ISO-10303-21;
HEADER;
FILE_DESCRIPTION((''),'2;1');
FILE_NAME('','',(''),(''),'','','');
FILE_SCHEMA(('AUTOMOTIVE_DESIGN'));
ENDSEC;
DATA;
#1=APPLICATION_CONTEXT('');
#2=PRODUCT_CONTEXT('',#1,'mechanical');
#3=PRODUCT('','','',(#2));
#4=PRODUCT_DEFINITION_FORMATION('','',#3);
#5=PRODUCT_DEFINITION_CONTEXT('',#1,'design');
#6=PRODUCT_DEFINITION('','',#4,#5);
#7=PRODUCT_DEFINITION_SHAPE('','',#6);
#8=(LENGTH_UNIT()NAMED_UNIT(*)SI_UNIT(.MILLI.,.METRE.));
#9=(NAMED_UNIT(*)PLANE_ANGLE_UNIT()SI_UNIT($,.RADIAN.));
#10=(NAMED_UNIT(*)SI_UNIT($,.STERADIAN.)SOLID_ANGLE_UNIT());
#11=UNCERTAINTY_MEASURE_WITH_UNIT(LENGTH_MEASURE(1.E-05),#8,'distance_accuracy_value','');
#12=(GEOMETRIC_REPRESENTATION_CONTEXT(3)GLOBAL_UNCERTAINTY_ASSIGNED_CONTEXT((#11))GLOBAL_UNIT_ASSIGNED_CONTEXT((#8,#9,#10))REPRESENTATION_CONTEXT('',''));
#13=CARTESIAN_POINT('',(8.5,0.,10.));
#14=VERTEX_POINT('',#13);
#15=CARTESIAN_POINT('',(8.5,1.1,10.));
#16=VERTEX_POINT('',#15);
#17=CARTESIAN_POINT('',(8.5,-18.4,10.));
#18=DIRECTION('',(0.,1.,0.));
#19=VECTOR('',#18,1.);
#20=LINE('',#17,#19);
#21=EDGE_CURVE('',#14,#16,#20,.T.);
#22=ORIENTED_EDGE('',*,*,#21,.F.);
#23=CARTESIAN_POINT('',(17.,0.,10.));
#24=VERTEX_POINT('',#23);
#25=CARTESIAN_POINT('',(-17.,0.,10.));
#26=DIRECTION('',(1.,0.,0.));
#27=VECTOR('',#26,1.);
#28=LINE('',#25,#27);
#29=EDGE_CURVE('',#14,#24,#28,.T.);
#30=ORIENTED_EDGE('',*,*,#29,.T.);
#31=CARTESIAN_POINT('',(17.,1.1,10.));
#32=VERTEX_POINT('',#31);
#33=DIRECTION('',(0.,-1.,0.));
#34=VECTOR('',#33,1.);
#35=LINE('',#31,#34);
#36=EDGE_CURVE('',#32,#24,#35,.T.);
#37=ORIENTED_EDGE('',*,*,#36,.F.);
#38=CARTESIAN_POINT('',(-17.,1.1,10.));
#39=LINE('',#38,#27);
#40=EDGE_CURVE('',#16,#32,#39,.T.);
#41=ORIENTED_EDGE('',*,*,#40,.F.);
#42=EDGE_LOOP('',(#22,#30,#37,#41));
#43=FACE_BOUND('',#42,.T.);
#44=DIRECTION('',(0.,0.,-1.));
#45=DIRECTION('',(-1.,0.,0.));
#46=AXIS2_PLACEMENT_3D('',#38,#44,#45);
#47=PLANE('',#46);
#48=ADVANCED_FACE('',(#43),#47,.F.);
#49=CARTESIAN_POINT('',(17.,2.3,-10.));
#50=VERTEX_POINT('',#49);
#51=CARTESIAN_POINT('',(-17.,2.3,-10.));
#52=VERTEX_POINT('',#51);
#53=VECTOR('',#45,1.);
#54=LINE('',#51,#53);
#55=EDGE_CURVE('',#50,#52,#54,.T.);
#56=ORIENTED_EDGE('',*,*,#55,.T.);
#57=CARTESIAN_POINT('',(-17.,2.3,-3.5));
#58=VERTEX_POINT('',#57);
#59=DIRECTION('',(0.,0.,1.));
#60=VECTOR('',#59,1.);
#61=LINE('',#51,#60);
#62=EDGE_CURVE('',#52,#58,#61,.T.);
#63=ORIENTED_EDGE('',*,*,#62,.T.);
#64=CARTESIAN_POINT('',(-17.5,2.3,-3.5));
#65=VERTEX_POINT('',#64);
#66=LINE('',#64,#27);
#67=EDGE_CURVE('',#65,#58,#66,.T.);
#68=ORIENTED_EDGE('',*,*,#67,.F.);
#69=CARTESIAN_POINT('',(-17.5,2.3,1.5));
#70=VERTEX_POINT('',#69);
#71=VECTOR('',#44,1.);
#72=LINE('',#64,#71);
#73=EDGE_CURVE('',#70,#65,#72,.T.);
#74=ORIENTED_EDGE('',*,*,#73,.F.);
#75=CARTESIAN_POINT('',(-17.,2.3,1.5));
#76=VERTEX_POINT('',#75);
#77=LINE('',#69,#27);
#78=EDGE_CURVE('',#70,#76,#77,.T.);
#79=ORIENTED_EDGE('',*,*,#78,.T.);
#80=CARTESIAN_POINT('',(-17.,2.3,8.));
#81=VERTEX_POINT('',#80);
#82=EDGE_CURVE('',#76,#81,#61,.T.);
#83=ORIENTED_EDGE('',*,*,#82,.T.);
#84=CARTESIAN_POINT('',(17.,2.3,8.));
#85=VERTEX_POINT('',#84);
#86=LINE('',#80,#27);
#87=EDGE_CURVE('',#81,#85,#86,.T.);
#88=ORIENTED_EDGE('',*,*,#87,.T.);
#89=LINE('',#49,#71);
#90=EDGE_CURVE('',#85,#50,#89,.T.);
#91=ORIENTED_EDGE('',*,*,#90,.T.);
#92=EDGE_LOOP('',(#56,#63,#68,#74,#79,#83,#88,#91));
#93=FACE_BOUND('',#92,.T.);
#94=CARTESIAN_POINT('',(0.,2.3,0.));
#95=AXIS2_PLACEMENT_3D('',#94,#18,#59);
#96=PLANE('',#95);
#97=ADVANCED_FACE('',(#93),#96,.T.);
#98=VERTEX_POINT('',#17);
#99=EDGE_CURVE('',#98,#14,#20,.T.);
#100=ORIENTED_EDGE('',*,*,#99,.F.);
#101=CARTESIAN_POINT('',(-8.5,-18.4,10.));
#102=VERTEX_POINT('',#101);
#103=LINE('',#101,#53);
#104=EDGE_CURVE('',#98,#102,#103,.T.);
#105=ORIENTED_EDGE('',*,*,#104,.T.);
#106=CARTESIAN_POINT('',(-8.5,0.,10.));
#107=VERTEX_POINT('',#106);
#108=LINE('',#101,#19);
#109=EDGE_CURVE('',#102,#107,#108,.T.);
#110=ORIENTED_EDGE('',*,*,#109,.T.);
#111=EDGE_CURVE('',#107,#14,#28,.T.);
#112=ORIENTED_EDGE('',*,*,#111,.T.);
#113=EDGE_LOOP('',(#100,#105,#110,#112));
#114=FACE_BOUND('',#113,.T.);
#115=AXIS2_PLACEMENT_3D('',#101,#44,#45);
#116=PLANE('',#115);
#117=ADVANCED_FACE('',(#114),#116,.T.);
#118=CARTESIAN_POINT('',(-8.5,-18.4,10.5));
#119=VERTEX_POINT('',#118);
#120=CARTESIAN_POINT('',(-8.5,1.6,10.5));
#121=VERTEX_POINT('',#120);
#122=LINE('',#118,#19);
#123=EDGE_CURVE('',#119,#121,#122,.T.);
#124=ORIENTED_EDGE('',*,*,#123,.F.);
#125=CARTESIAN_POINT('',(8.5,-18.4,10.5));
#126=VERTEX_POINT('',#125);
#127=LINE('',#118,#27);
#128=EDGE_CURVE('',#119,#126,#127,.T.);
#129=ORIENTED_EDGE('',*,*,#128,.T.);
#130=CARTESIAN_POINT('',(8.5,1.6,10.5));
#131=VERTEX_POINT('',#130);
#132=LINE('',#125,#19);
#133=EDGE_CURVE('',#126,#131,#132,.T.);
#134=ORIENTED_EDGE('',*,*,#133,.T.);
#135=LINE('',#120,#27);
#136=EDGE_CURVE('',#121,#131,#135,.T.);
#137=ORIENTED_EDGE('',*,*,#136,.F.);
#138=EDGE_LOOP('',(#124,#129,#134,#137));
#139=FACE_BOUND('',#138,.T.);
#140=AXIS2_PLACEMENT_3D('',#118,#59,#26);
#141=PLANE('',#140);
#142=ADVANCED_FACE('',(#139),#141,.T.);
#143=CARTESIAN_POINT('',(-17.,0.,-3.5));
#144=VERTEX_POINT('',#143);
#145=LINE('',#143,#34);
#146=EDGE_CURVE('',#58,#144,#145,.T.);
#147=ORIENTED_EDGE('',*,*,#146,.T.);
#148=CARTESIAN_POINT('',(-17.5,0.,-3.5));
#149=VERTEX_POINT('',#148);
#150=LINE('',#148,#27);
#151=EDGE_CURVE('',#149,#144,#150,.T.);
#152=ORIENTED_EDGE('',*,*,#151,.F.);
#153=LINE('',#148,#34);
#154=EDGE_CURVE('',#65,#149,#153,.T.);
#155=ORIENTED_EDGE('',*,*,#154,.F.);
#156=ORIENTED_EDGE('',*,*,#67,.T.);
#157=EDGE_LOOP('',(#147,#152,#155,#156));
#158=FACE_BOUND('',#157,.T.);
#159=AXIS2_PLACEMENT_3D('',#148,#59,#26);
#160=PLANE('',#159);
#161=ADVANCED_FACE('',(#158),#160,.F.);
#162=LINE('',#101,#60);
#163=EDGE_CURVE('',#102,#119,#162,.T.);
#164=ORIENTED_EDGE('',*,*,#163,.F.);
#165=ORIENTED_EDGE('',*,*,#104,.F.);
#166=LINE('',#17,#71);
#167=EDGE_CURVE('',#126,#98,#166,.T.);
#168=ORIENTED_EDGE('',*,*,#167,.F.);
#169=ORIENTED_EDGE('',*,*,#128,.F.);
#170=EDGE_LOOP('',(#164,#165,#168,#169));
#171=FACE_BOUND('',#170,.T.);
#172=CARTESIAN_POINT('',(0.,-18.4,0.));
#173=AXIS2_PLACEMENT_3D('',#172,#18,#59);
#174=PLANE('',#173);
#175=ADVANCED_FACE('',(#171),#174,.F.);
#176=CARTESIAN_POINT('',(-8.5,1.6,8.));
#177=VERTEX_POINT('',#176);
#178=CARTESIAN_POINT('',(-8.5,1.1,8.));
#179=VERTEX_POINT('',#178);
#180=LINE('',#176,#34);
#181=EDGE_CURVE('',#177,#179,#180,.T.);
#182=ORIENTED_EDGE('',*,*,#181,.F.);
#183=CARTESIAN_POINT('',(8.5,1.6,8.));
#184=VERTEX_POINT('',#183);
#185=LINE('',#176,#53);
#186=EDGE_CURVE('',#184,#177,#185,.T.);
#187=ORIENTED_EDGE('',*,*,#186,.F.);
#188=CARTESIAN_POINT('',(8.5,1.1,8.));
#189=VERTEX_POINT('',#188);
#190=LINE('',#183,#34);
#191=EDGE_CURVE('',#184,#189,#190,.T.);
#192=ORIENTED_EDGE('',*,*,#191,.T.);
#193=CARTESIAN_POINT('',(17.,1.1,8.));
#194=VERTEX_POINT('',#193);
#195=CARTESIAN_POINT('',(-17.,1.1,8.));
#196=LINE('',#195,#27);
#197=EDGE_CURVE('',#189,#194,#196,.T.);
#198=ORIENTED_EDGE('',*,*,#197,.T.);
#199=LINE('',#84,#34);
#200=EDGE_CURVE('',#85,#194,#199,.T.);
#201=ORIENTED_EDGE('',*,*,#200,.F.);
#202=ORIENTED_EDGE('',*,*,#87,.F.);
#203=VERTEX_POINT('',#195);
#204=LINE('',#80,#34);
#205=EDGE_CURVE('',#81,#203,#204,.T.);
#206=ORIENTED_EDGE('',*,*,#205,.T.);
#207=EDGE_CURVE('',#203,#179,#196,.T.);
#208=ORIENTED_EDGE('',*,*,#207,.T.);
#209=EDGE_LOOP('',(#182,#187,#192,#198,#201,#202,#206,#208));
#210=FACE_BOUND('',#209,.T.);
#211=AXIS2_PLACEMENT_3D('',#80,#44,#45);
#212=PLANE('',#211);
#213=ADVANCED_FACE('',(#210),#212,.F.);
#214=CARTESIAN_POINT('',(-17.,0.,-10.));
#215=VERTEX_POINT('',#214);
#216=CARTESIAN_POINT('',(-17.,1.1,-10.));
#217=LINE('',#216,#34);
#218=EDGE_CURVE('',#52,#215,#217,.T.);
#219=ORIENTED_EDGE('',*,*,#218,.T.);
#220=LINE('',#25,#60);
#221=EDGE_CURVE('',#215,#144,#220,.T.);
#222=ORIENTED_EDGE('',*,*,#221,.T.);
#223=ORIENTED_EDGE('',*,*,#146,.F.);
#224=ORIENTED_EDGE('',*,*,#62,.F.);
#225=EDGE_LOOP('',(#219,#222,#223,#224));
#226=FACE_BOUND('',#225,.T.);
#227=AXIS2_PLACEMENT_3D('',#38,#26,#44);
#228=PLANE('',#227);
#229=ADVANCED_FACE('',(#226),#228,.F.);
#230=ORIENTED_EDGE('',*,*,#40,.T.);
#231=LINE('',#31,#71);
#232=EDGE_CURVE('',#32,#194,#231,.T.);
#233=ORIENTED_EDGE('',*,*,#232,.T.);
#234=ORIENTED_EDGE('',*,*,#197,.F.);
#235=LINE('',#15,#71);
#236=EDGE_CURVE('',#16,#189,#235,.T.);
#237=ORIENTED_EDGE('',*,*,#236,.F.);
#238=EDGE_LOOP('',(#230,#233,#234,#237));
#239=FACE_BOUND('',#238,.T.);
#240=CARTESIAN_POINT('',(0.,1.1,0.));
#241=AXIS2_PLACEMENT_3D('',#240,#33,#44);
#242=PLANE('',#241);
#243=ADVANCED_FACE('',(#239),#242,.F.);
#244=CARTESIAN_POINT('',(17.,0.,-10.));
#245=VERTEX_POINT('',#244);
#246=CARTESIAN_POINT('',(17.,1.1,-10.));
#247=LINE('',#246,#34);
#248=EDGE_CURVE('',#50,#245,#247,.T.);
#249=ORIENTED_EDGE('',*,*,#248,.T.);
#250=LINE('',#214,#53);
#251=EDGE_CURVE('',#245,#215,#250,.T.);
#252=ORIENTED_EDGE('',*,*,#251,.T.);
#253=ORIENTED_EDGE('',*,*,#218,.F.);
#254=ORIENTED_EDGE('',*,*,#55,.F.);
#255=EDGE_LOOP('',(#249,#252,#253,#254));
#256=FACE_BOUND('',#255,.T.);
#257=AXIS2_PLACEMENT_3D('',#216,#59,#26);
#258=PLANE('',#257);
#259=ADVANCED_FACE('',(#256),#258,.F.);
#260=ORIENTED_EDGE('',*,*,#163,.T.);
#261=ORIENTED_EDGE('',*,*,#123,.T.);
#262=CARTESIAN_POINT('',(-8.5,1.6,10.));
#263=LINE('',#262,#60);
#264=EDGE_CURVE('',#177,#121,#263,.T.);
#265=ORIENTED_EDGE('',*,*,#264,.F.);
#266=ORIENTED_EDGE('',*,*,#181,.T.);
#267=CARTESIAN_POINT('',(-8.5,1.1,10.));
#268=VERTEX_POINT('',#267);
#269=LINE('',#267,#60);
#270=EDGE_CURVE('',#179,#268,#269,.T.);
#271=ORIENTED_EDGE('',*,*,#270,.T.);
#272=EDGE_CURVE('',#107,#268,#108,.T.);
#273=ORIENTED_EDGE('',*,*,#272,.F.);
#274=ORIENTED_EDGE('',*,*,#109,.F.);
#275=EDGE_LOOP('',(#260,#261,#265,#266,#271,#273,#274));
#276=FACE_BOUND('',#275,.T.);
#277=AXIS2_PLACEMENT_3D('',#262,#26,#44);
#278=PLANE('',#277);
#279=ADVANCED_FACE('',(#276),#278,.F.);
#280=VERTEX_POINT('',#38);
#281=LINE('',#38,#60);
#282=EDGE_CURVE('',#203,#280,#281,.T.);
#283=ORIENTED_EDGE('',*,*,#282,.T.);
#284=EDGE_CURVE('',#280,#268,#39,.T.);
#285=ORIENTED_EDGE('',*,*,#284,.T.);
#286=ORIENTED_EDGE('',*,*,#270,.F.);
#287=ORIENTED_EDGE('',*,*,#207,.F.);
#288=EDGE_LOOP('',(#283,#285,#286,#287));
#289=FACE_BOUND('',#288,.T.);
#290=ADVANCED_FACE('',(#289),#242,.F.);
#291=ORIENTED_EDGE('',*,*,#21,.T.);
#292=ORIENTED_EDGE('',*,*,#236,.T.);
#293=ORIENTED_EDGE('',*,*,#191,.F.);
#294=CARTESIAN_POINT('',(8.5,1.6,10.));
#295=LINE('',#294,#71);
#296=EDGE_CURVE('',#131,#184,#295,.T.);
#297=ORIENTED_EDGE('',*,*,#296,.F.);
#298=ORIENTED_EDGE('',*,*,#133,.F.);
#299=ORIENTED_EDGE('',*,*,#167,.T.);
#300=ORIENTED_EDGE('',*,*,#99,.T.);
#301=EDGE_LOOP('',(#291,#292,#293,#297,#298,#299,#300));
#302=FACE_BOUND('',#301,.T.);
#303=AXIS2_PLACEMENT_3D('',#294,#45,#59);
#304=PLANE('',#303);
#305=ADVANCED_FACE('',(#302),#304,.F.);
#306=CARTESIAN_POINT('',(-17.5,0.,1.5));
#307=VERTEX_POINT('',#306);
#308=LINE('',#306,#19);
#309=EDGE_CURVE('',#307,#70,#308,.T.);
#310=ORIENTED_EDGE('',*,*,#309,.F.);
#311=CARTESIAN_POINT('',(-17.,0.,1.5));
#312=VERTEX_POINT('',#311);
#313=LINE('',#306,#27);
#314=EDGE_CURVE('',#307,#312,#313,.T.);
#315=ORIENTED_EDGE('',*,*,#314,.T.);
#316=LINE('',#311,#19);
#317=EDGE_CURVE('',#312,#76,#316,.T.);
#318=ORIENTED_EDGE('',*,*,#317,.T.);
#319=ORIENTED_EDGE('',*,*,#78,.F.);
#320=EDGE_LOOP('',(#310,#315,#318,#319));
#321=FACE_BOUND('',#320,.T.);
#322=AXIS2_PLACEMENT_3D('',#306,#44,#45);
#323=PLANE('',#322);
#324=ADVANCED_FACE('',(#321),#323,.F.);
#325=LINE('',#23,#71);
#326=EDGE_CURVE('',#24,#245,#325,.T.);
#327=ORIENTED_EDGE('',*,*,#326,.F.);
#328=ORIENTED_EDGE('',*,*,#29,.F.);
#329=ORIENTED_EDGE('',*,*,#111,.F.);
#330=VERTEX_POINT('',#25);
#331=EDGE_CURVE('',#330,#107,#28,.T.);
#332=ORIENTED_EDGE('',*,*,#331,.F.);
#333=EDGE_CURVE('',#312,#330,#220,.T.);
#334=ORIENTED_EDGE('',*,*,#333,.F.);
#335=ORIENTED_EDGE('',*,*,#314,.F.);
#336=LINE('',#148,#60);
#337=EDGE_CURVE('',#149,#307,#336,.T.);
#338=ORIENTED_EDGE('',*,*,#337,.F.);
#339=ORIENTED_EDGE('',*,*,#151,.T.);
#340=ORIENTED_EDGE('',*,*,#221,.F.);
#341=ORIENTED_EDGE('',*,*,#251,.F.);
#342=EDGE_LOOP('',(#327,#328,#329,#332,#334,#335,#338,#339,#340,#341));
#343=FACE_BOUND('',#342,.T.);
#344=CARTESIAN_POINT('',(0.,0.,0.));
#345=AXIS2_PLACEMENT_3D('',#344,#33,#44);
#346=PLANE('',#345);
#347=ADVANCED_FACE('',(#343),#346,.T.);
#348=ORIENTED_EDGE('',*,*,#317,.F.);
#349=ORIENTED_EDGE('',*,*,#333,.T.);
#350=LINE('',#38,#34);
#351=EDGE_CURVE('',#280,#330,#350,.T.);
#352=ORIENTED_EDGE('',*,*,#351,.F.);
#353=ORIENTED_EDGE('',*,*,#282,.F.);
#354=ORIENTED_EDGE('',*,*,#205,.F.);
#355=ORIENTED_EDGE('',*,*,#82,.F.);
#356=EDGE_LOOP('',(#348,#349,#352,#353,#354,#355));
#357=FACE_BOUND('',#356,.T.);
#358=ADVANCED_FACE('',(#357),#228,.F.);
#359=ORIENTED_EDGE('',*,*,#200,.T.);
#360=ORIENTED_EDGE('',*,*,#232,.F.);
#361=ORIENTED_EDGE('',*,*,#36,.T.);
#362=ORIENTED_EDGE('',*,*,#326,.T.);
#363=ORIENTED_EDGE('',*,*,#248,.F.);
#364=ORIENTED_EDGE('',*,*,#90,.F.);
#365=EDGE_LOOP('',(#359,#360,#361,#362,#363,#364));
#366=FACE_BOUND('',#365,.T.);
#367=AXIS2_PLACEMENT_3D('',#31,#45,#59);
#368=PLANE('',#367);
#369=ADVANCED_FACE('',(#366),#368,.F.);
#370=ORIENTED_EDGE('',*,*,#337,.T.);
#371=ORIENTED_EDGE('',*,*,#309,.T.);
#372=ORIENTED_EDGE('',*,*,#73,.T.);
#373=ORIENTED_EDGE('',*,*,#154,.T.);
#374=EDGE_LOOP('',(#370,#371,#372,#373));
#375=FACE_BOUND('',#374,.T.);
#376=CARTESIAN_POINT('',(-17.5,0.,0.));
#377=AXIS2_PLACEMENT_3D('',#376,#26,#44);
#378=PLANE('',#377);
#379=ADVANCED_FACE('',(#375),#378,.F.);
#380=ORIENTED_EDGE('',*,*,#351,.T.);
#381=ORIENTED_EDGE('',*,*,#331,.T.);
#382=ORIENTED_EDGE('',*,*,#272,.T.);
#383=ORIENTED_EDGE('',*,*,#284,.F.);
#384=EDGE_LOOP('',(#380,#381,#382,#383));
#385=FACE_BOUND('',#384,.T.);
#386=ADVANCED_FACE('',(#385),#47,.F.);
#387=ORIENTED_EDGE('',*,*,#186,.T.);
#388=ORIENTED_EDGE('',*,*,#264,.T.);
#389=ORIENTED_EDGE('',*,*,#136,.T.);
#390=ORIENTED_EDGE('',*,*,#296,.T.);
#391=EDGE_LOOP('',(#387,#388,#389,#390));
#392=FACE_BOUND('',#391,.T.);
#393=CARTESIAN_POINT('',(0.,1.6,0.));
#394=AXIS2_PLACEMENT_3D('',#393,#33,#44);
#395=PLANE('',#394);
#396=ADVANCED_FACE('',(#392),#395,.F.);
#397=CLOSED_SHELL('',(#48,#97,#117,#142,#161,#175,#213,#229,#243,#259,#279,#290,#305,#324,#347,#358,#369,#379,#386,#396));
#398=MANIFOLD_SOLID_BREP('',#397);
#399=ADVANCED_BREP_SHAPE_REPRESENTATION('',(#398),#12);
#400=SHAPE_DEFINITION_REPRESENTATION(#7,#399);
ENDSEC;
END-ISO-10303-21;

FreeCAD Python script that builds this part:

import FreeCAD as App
import Part
import Sketcher
from FreeCAD import Vector
Q = App.Units.Quantity


def add_polygon(sketch, points):
    """Adds a closed chain of lines whose ends are joined by coincident constraints."""
    first, n = sketch.GeometryCount, len(points)
    for a, b in zip(points, points[1:] + points[:1]):
        sketch.addGeometry(Part.LineSegment(App.Vector(*a, 0), App.Vector(*b, 0)), False)
    for i in range(n):
        sketch.addConstraint(Sketcher.Constraint("Coincident", first + i, 2, first + (i + 1) % n, 1))

doc = App.newDocument("Part")
body = doc.addObject("PartDesign::Body", "Body")

sketch1 = body.newObject("Sketcher::SketchObject", "Sketch")
sketch1.AttachmentSupport = (doc.getObject("XZ_Plane"), [""])
sketch1.MapMode = "FlatFace"
add_polygon(sketch1, [(-17, -10), (-17, 10), (17, 10), (17, -10)])
sketch1.addConstraint(Sketcher.Constraint("Vertical", 0))
sketch1.addConstraint(Sketcher.Constraint("Horizontal", 1))
sketch1.addConstraint(Sketcher.Constraint("Vertical", 2))
sketch1.addConstraint(Sketcher.Constraint("Horizontal", 3))
sketch1.addConstraint(Sketcher.Constraint("Symmetric", 0, 2, 2, 2, -1, 1))
sketch1.addConstraint(Sketcher.Constraint("DistanceX", 1, 1, 1, 2, Q("34 mm")))
sketch1.addConstraint(Sketcher.Constraint("DistanceY", 0, 1, 0, 2, Q("20 mm")))
pad1 = body.newObject("PartDesign::Pad", "Pad")
pad1.Profile = sketch1
pad1.Length = 1.1
pad1.Reversed = True

sketch2 = body.newObject("Sketcher::SketchObject", "Sketch001")
sketch2.AttachmentSupport = (doc.getObject("XZ_Plane"), [""])
sketch2.MapMode = "FlatFace"
sketch2.AttachmentOffset = App.Placement(Vector(0, 0, -1.1), App.Rotation())
add_polygon(sketch2, [(-17, -10), (-17, 8), (17, 8), (17, -10)])
sketch2.addConstraint(Sketcher.Constraint("Vertical", 0))
sketch2.addConstraint(Sketcher.Constraint("Horizontal", 1))
sketch2.addConstraint(Sketcher.Constraint("Vertical", 2))
sketch2.addConstraint(Sketcher.Constraint("Horizontal", 3))
sketch2.addConstraint(Sketcher.Constraint("DistanceX", 1, 1, 1, 2, Q("34 mm")))
sketch2.addConstraint(Sketcher.Constraint("DistanceY", 0, 1, 0, 2, Q("18 mm")))
sketch2.addConstraint(Sketcher.Constraint("DistanceX", 0, 2, -1, 1, Q("17 mm")))
sketch2.addConstraint(Sketcher.Constraint("DistanceY", -1, 1, 0, 2, Q("8 mm")))
pad2 = body.newObject("PartDesign::Pad", "Pad001")
pad2.Profile = sketch2
pad2.Length = 1.2
pad2.Reversed = True

sketch3 = body.newObject("Sketcher::SketchObject", "Sketch002")
sketch3.AttachmentSupport = (doc.getObject("YZ_Plane"), [""])
sketch3.MapMode = "FlatFace"
sketch3.AttachmentOffset = App.Placement(Vector(0, 0, -17), App.Rotation())
add_polygon(sketch3, [(2.3, -3.5), (0, -3.5), (0, 1.5), (2.3, 1.5)])
sketch3.addConstraint(Sketcher.Constraint("Horizontal", 0))
sketch3.addConstraint(Sketcher.Constraint("Vertical", 1))
sketch3.addConstraint(Sketcher.Constraint("Horizontal", 2))
sketch3.addConstraint(Sketcher.Constraint("Vertical", 3))
sketch3.addConstraint(Sketcher.Constraint("PointOnObject", 0, 2, -2))
sketch3.addConstraint(Sketcher.Constraint("DistanceY", 1, 1, 1, 2, Q("5 mm")))
sketch3.addConstraint(Sketcher.Constraint("DistanceX", 0, 2, 0, 1, Q("2.3 mm")))
sketch3.addConstraint(Sketcher.Constraint("DistanceY", 0, 2, -1, 1, Q("3.5 mm")))
pad3 = body.newObject("PartDesign::Pad", "Pad002")
pad3.Profile = sketch3
pad3.Length = 0.5
pad3.Reversed = True

sketch4 = body.newObject("Sketcher::SketchObject", "Sketch003")
sketch4.AttachmentSupport = (doc.getObject("XZ_Plane"), [""])
sketch4.MapMode = "FlatFace"
sketch4.AttachmentOffset = App.Placement(Vector(0, 0, -1.1), App.Rotation())
add_polygon(sketch4, [(-8.5, 8), (-8.5, 10), (8.5, 10), (8.5, 8)])
sketch4.addConstraint(Sketcher.Constraint("Vertical", 0))
sketch4.addConstraint(Sketcher.Constraint("Horizontal", 1))
sketch4.addConstraint(Sketcher.Constraint("Vertical", 2))
sketch4.addConstraint(Sketcher.Constraint("Horizontal", 3))
sketch4.addConstraint(Sketcher.Constraint("DistanceX", 1, 1, 1, 2, Q("17 mm")))
sketch4.addConstraint(Sketcher.Constraint("DistanceY", 0, 1, 0, 2, Q("2 mm")))
sketch4.addConstraint(Sketcher.Constraint("DistanceY", -1, 1, 0, 2, Q("10 mm")))
sketch4.addConstraint(Sketcher.Constraint("DistanceX", 0, 2, -1, 1, Q("8.5 mm")))
pad4 = body.newObject("PartDesign::Pad", "Pad003")
pad4.Profile = sketch4
pad4.Length = 0.5
pad4.Reversed = True

sketch5 = body.newObject("Sketcher::SketchObject", "Sketch004")
sketch5.AttachmentSupport = (doc.getObject("XZ_Plane"), [""])
sketch5.MapMode = "FlatFace"
sketch5.AttachmentOffset = App.Placement(Vector(0, 0, -1.6), App.Rotation())
add_polygon(sketch5, [(-8.5, 10), (-8.5, 10.5), (8.5, 10.5), (8.5, 10)])
sketch5.addConstraint(Sketcher.Constraint("Vertical", 0))
sketch5.addConstraint(Sketcher.Constraint("Horizontal", 1))
sketch5.addConstraint(Sketcher.Constraint("Vertical", 2))
sketch5.addConstraint(Sketcher.Constraint("Horizontal", 3))
sketch5.addConstraint(Sketcher.Constraint("DistanceX", 1, 1, 1, 2, Q("17 mm")))
sketch5.addConstraint(Sketcher.Constraint("DistanceY", 0, 1, 0, 2, Q("0.5 mm")))
sketch5.addConstraint(Sketcher.Constraint("DistanceY", -1, 1, 2, 2, Q("10 mm")))
sketch5.addConstraint(Sketcher.Constraint("DistanceX", 0, 2, -1, 1, Q("8.5 mm")))
pad5 = body.newObject("PartDesign::Pad", "Pad004")
pad5.Profile = sketch5
pad5.Length = 20

doc.recompute()
